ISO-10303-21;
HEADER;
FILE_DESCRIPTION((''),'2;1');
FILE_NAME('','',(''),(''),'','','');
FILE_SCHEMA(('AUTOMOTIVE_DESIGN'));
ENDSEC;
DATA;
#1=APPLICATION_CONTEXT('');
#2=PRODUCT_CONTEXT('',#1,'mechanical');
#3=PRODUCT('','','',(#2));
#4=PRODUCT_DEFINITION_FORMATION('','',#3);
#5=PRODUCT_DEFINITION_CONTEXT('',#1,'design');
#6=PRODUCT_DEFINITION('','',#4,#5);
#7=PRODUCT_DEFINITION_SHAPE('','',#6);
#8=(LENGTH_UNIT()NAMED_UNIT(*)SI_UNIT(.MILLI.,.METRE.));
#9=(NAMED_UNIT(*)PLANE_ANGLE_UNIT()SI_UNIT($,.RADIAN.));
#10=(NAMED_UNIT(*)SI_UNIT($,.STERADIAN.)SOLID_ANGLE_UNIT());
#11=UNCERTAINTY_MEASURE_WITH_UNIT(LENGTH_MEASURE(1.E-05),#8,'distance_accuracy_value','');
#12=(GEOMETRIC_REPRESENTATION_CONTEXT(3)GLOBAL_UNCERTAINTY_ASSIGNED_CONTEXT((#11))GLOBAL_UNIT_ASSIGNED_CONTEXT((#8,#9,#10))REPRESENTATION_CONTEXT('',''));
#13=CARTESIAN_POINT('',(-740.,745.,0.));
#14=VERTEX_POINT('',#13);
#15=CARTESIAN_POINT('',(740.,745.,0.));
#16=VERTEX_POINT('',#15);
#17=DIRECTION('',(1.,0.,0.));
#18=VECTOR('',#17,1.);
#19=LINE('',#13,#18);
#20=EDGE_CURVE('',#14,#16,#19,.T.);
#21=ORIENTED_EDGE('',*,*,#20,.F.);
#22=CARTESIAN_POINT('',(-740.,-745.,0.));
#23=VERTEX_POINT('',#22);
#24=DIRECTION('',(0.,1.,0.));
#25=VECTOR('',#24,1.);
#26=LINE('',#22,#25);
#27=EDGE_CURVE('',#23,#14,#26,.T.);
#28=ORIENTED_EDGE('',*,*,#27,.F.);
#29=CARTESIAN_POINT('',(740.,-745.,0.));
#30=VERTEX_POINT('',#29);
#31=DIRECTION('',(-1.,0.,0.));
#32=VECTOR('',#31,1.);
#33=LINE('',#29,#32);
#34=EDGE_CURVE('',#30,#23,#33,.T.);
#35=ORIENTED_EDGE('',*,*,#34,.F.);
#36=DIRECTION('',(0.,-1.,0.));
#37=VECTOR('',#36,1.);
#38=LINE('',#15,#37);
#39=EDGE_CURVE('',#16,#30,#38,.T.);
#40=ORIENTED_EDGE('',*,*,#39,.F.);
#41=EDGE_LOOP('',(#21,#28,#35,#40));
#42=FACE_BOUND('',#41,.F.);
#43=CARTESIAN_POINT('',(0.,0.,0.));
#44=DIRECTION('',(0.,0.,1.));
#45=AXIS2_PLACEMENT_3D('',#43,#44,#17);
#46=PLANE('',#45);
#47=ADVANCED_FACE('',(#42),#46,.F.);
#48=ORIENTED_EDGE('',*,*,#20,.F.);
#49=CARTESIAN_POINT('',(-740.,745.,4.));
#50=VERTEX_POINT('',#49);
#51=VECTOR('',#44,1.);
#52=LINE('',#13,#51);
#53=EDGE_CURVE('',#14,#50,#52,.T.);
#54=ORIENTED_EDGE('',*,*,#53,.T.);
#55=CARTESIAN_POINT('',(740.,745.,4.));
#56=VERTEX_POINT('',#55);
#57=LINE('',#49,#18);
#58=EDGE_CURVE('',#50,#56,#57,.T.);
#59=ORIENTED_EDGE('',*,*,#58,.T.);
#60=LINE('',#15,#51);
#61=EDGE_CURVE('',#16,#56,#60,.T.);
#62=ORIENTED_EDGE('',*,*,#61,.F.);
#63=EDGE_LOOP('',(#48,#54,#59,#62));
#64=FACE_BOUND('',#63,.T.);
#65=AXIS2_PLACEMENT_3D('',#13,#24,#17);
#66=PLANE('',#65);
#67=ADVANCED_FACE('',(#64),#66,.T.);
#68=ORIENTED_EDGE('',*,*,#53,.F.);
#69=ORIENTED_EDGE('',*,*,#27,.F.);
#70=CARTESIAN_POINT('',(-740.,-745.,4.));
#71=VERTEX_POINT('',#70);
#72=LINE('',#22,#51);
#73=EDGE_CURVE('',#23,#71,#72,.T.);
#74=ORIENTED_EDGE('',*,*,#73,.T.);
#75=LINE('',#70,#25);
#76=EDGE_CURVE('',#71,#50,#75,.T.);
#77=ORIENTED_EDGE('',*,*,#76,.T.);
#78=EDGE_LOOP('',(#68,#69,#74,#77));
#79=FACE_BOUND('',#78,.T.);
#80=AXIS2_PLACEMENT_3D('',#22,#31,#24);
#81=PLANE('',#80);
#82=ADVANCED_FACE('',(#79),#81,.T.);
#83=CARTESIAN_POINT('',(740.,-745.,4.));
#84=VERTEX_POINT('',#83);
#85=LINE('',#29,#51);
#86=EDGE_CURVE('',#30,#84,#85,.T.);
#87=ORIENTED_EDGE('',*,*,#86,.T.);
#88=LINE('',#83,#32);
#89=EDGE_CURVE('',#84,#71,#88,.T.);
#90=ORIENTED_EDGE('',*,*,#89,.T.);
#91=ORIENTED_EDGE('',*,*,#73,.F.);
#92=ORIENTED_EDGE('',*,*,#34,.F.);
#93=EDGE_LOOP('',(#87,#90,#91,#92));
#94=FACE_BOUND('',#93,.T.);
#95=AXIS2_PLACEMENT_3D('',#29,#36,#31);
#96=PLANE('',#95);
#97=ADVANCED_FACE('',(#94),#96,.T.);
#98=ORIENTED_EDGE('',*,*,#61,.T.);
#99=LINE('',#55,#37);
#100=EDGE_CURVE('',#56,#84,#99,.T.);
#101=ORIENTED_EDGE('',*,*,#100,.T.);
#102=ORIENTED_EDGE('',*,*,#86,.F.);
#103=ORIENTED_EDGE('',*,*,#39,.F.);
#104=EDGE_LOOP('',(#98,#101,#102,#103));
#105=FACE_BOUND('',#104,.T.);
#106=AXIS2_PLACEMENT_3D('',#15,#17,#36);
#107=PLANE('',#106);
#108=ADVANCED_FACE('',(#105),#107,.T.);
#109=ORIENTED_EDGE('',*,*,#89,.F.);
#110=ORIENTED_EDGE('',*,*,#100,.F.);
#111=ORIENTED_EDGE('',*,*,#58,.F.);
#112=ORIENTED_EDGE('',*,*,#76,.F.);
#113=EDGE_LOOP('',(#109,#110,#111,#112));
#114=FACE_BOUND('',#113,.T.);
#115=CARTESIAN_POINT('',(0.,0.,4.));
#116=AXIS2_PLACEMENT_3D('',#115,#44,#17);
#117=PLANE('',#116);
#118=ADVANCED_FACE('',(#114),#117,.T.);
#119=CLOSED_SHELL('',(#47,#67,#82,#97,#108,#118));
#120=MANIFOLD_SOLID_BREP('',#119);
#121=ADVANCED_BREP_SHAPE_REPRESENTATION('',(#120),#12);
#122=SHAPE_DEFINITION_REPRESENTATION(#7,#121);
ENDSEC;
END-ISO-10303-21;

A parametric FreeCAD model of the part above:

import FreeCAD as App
import Part
import Sketcher
from FreeCAD import Vector
Q = App.Units.Quantity

doc = App.newDocument("Part")
body = doc.addObject("PartDesign::Body", "Body")

# Sketch on XY plane
sketch1 = body.newObject("Sketcher::SketchObject", "Sketch")
sketch1.AttachmentSupport = (doc.getObject("XY_Plane"), [""])
sketch1.MapMode = "FlatFace"
sketch1.addGeometry([
    Part.LineSegment(Vector(-740, -745, 0), Vector(740, -745, 0)),
    Part.LineSegment(Vector(740, -745, 0), Vector(740, 745, 0)),
    Part.LineSegment(Vector(740, 745, 0), Vector(-740, 745, 0)),
    Part.LineSegment(Vector(-740, 745, 0), Vector(-740, -745, 0)),
], False)
sketch1.addConstraint([
    Sketcher.Constraint("Coincident", 0, 2, 1, 1),
    Sketcher.Constraint("Coincident", 1, 2, 2, 1),
    Sketcher.Constraint("Coincident", 2, 2, 3, 1),
    Sketcher.Constraint("Coincident", 3, 2, 0, 1),
    Sketcher.Constraint("Horizontal", 0),
    Sketcher.Constraint("Vertical", 1),
    Sketcher.Constraint("Horizontal", 2),
    Sketcher.Constraint("Vertical", 3),
    Sketcher.Constraint("Symmetric", 0, 2, 2, 2, -1, 1),
    Sketcher.Constraint("DistanceX", 0, 1, 0, 2, Q("1480 mm")),
    Sketcher.Constraint("DistanceY", 1, 1, 1, 2, Q("1490 mm")),
])
pad1 = body.newObject("PartDesign::Pad", "Pad")
pad1.Profile = sketch1
pad1.Length = 4

doc.recompute()
